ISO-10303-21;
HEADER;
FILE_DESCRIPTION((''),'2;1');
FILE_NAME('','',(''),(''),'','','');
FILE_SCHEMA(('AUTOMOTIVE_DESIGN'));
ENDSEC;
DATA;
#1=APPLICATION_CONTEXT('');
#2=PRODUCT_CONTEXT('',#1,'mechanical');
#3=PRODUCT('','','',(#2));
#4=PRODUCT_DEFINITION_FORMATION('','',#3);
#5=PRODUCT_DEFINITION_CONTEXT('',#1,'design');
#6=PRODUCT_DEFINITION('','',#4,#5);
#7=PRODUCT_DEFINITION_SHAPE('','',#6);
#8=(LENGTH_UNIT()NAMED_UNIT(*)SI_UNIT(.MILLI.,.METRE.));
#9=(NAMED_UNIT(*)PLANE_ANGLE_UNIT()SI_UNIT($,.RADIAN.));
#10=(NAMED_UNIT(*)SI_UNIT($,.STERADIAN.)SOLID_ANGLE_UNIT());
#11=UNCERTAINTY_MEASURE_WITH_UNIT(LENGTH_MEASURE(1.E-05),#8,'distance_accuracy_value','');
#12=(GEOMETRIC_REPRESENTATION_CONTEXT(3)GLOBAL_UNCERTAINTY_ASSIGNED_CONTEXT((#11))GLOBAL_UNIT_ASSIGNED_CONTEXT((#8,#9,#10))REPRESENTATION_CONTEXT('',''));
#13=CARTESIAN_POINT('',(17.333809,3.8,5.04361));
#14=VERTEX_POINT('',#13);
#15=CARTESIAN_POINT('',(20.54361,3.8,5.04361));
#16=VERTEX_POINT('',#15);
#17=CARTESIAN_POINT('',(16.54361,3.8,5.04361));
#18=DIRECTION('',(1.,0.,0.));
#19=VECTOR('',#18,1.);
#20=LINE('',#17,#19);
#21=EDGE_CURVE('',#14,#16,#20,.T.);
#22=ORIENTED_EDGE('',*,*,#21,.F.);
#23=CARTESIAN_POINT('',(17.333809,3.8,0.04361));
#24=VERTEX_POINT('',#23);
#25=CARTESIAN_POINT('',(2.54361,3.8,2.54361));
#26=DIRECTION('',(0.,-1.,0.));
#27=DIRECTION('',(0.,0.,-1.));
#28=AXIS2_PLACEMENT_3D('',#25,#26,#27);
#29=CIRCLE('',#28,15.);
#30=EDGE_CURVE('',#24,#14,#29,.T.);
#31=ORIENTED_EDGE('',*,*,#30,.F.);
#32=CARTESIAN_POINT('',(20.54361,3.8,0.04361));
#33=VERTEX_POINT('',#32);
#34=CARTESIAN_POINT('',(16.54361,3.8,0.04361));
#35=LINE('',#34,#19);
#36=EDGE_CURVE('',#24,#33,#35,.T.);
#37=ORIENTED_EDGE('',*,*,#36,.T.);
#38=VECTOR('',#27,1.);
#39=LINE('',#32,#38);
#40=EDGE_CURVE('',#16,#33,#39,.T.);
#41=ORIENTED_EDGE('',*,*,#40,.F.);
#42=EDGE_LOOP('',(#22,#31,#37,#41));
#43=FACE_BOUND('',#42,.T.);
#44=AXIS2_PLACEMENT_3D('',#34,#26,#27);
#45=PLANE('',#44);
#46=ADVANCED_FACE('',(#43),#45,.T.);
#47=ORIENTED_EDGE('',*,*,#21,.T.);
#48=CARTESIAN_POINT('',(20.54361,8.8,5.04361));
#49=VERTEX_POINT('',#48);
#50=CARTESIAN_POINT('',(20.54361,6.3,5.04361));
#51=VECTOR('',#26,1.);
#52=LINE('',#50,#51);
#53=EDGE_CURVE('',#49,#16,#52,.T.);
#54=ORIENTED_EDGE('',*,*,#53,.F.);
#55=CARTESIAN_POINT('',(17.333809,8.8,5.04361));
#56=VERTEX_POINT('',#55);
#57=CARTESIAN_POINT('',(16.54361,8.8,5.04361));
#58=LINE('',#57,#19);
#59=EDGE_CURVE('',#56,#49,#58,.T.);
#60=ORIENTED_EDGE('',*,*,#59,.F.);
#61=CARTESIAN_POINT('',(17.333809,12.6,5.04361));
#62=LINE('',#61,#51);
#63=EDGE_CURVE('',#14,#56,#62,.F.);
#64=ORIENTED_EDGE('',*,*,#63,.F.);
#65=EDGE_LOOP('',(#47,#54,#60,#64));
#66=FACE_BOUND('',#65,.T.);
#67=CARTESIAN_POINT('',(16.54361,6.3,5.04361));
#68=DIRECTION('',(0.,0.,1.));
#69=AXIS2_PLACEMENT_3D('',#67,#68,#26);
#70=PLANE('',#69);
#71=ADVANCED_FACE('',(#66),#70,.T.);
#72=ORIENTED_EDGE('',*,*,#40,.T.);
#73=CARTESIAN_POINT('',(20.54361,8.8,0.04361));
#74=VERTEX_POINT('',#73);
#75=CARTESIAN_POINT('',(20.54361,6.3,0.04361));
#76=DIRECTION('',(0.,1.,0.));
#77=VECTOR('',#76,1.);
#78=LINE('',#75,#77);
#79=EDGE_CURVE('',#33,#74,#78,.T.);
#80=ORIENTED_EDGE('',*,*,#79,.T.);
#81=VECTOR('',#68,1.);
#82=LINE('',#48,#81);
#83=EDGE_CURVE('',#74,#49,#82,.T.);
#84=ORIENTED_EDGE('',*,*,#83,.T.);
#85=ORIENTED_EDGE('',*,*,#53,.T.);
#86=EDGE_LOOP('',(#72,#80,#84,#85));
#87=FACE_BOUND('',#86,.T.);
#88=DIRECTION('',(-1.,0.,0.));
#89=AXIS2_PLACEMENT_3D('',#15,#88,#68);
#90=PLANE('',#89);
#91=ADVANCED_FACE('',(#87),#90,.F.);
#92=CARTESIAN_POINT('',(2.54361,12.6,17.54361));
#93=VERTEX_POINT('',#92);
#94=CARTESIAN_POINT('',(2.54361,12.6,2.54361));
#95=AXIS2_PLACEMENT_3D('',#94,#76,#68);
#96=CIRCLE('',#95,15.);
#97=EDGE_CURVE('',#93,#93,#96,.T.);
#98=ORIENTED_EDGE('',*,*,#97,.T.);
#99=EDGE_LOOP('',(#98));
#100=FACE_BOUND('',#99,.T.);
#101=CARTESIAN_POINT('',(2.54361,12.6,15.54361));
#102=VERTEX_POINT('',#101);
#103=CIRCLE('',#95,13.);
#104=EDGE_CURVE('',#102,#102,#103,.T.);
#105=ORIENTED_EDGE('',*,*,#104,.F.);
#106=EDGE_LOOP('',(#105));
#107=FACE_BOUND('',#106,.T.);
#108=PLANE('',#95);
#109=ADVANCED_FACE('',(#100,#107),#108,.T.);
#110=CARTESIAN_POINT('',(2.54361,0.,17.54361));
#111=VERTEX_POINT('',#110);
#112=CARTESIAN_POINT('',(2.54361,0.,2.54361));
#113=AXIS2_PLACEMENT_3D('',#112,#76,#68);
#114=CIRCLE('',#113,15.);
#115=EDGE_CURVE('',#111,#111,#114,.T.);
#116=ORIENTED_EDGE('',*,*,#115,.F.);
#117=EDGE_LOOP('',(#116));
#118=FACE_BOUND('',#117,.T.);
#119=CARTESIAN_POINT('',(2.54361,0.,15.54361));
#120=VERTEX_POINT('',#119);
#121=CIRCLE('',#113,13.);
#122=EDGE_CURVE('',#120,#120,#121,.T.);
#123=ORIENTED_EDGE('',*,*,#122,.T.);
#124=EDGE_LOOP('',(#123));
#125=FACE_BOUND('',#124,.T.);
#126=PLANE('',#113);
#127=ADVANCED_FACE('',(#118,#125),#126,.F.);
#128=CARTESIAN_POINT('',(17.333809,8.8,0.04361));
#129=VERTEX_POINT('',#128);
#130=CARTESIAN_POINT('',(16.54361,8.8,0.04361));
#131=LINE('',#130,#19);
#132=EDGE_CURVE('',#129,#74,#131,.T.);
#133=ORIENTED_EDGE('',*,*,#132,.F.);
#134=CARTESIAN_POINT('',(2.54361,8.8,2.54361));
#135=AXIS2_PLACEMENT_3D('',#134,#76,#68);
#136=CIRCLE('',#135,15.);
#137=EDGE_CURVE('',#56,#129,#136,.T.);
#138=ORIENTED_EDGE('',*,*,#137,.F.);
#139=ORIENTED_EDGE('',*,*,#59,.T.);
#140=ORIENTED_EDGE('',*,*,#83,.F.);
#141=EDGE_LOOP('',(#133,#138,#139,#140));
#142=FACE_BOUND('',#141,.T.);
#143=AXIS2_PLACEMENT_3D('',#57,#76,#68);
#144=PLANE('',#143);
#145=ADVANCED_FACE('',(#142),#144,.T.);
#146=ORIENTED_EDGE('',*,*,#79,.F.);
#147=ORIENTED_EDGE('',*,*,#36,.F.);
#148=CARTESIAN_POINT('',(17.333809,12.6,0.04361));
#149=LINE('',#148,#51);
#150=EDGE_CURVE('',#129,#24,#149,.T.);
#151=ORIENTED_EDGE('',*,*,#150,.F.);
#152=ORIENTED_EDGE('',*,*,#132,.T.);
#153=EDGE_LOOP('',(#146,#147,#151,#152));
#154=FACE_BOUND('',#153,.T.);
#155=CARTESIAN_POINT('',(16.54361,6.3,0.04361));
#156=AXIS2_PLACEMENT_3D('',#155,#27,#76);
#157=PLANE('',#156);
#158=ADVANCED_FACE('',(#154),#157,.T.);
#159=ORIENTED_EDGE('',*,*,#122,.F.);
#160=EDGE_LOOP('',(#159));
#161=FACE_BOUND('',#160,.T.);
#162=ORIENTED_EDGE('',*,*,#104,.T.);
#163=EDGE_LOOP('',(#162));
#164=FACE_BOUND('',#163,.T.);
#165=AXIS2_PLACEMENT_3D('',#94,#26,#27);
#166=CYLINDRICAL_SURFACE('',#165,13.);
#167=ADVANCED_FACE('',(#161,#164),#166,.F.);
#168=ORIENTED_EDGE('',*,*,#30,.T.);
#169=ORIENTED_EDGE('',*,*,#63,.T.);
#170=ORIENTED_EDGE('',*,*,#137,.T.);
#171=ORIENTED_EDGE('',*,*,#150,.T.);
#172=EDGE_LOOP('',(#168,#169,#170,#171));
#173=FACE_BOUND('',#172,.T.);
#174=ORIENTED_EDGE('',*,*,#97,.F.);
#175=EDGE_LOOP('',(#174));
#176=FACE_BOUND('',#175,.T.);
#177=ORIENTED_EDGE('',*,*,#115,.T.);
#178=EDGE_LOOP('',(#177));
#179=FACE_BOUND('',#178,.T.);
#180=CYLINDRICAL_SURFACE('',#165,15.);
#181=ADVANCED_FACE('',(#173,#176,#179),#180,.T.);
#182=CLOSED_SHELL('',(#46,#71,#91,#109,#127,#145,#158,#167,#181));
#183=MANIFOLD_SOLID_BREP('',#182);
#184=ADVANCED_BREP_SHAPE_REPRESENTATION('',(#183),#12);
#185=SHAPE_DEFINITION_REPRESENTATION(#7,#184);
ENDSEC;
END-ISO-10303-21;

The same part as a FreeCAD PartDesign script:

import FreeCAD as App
import Part
import Sketcher

V = App.Vector
Q = App.Units.Quantity


def add_polygon(sketch, points):
    """Adds a closed chain of lines whose ends are joined by coincident constraints."""
    first, n = sketch.GeometryCount, len(points)
    for a, b in zip(points, points[1:] + points[:1]):
        sketch.addGeometry(Part.LineSegment(App.Vector(*a, 0), App.Vector(*b, 0)), False)
    for i in range(n):
        sketch.addConstraint(Sketcher.Constraint("Coincident", first + i, 2, first + (i + 1) % n, 1))

doc = App.newDocument("Part")
params = doc.addObject("Spreadsheet::Sheet", "Params")
for row, (alias, value) in enumerate([
    ("sketch1_diameter", "30 mm"),
    ("sketch1_diameter2", "26 mm"),
    ("pad1_length", "12.6 mm"),
    ("sketch2_width", "5 mm"),
    ("pad2_length", "3 mm"),
    ("pad2_length2", "1 mm"),
], start=1):
    params.set(f"A{row}", alias)
    params.set(f"B{row}", "=" + value)
    params.setAlias(f"B{row}", alias)

body = doc.addObject("PartDesign::Body", "Body")

# Sketch on XZ plane
sketch1 = doc.addObject("Sketcher::SketchObject", "Sketch")
body.addObject(sketch1)
sketch1.AttachmentSupport = (doc.XZ_Plane, [""])
sketch1.MapMode = "FlatFace"
sketch1.addGeometry([
    Part.Circle(V(3, 3, 0), V(0, 0, 1), 15),
    Part.Circle(V(3, 3, 0), V(0, 0, 1), 13),
], False)
sketch1.addConstraint([
    Sketcher.Constraint("Coincident", 1, 3, 0, 3),
    Sketcher.Constraint("Diameter", 0, Q("30 mm")),
    Sketcher.Constraint("Diameter", 1, Q("26 mm")),
    Sketcher.Constraint("DistanceX", -1, 1, 0, 3, Q("2.54361 mm")),
    Sketcher.Constraint("DistanceY", -1, 1, 0, 3, Q("2.54361 mm")),
])
sketch1.setExpression("Constraints[1]", "Params.sketch1_diameter")
sketch1.setExpression("Constraints[2]", "Params.sketch1_diameter2")
pad1 = doc.addObject("PartDesign::Pad", "Pad")
body.addObject(pad1)
pad1.Profile = sketch1
pad1.setExpression("Length", "Params.pad1_length")
pad1.Reversed = True

# Sketch on YZ plane
sketch2 = doc.addObject("Sketcher::SketchObject", "Sketch001")
body.addObject(sketch2)
sketch2.AttachmentSupport = (doc.YZ_Plane, [""])
sketch2.MapMode = "FlatFace"
sketch2.AttachmentOffset = App.Placement(V(0, 0, 17.54361), App.Rotation())
add_polygon(sketch2, [(9, 5), (4, 5), (4, 0), (9, 0)])  # lines 0-3
sketch2.addConstraint([
    Sketcher.Constraint("Horizontal", 0),
    Sketcher.Constraint("Vertical", 1),
    Sketcher.Constraint("Horizontal", 2),
    Sketcher.Constraint("Vertical", 3),
    Sketcher.Constraint("Equal", 2, 1),
    Sketcher.Constraint("DistanceX", 0, 2, 0, 1, Q("5 mm")),
    Sketcher.Constraint("DistanceX", -1, 1, 0, 2, Q("3.8 mm")),
    Sketcher.Constraint("DistanceY", -1, 1, 0, 2, Q("5.04361 mm")),
])
sketch2.setExpression("Constraints[9]", "Params.sketch2_width")
pad2 = doc.addObject("PartDesign::Pad", "Pad001")
body.addObject(pad2)
pad2.Profile = sketch2
pad2.Type = "TwoLengths"
pad2.setExpression("Length", "Params.pad2_length")
pad2.setExpression("Length2", "Params.pad2_length2")

doc.recompute()
